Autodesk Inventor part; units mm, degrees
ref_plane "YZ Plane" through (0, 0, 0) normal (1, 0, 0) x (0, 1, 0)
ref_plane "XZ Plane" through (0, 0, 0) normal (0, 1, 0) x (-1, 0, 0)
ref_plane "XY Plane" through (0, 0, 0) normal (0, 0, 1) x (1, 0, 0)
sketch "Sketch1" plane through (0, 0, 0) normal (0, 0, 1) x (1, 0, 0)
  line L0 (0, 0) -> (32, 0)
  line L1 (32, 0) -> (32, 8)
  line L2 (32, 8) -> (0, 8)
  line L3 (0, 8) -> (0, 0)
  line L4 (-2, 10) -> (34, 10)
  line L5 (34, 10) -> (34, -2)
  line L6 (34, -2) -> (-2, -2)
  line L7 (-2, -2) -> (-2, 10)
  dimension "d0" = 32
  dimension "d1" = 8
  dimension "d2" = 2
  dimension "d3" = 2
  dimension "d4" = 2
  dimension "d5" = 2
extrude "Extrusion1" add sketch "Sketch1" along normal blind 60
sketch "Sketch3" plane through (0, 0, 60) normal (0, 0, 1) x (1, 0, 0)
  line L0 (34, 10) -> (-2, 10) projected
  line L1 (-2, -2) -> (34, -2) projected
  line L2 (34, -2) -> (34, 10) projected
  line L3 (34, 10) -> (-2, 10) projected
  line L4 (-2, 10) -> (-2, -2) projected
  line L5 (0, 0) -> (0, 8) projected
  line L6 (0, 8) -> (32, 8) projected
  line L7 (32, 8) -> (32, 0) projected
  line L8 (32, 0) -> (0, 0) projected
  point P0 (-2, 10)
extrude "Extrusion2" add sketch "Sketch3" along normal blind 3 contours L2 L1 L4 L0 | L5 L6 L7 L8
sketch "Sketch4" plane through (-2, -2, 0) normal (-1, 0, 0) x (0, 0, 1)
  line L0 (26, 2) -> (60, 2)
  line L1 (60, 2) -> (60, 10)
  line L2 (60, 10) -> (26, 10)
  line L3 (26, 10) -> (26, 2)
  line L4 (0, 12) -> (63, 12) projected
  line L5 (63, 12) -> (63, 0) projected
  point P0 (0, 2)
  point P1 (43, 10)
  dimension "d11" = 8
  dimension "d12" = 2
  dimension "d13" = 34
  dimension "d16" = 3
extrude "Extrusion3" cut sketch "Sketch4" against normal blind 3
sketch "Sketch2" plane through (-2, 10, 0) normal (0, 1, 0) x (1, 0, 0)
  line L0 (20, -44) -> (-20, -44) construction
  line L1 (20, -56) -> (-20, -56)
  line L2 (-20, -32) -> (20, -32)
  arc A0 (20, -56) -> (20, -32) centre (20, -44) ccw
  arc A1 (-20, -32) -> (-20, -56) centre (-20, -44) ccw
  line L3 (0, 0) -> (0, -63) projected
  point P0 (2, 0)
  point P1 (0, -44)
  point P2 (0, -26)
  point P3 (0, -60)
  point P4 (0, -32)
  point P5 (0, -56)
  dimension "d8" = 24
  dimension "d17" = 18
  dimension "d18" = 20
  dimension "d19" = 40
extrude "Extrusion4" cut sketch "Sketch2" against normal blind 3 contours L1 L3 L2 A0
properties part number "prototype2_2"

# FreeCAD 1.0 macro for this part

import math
import FreeCAD as App
import Part
import Sketcher
from FreeCAD import Vector

doc = App.newDocument("Part")
body = doc.addObject("PartDesign::Body", "Body")

sketch1 = body.newObject("Sketcher::SketchObject", "Sketch")
sketch1.AttachmentSupport = (doc.getObject("XY_Plane"), [""])
sketch1.MapMode = "FlatFace"
sketch1.addGeometry([
    Part.LineSegment(Vector(34, 10, 0), Vector(-2, 10, 0)),
    Part.LineSegment(Vector(-2, 10, 0), Vector(-2, -2, 0)),
    Part.LineSegment(Vector(-2, -2, 0), Vector(34, -2, 0)),
    Part.LineSegment(Vector(34, -2, 0), Vector(34, 10, 0)),
    Part.LineSegment(Vector(32, 0, 0), Vector(0, 0, 0)),
    Part.LineSegment(Vector(0, 0, 0), Vector(0, 8, 0)),
    Part.LineSegment(Vector(0, 8, 0), Vector(32, 8, 0)),
    Part.LineSegment(Vector(32, 8, 0), Vector(32, 0, 0)),
], False)
sketch1.addConstraint([
    Sketcher.Constraint("Coincident", 0, 2, 1, 1),
    Sketcher.Constraint("Coincident", 1, 2, 2, 1),
    Sketcher.Constraint("Coincident", 2, 2, 3, 1),
    Sketcher.Constraint("Coincident", 3, 2, 0, 1),
    Sketcher.Constraint("Coincident", 4, 2, 5, 1),
    Sketcher.Constraint("Coincident", 5, 2, 6, 1),
    Sketcher.Constraint("Coincident", 6, 2, 7, 1),
    Sketcher.Constraint("Coincident", 7, 2, 4, 1),
    Sketcher.Constraint("Horizontal", 0),
    Sketcher.Constraint("Vertical", 1),
    Sketcher.Constraint("Horizontal", 2),
    Sketcher.Constraint("Vertical", 3),
    Sketcher.Constraint("Horizontal", 4),
    Sketcher.Constraint("Vertical", 5),
    Sketcher.Constraint("Horizontal", 6),
    Sketcher.Constraint("Vertical", 7),
    Sketcher.Constraint("Coincident", 4, 2, -1, 1),
    Sketcher.Constraint("DistanceX", 4, 2, 4, 1, 32.0),
    Sketcher.Constraint("DistanceY", 5, 1, 5, 2, 8.0),
    Sketcher.Constraint("DistanceX", 0, 2, -1, 1, 2.0),
    Sketcher.Constraint("DistanceY", 1, 2, -1, 1, 2.0),
    Sketcher.Constraint("DistanceY", 5, 2, 0, 2, 2.0),
    Sketcher.Constraint("DistanceX", 6, 2, 3, 2, 2.0),
])
pad1 = body.newObject("PartDesign::Pad", "Pad")
pad1.Profile = sketch1
pad1.Length = 60

sketch2 = body.newObject("Sketcher::SketchObject", "Sketch001")
sketch2.AttachmentSupport = (doc.getObject("XY_Plane"), [""])
sketch2.MapMode = "FlatFace"
sketch2.AttachmentOffset = App.Placement(Vector(0, 0, 60), App.Rotation())
sketch2.addGeometry([
    Part.LineSegment(Vector(34, -2, 0), Vector(34, 10, 0)),
    Part.LineSegment(Vector(34, 10, 0), Vector(-2, 10, 0)),
    Part.LineSegment(Vector(-2, 10, 0), Vector(-2, -2, 0)),
    Part.LineSegment(Vector(-2, -2, 0), Vector(34, -2, 0)),
], False)
sketch2.addConstraint([
    Sketcher.Constraint("Coincident", 0, 2, 1, 1),
    Sketcher.Constraint("Coincident", 1, 2, 2, 1),
    Sketcher.Constraint("Coincident", 2, 2, 3, 1),
    Sketcher.Constraint("Coincident", 3, 2, 0, 1),
    Sketcher.Constraint("Vertical", 0),
    Sketcher.Constraint("Horizontal", 1),
    Sketcher.Constraint("Vertical", 2),
    Sketcher.Constraint("Horizontal", 3),
    Sketcher.Constraint("DistanceX", 1, 2, 1, 1, 36.0),
    Sketcher.Constraint("DistanceY", 0, 1, 0, 2, 12.0),
    Sketcher.Constraint("DistanceX", -1, 1, 0, 2, 34.0),
    Sketcher.Constraint("DistanceY", -1, 1, 0, 2, 10.0),
])
pad2 = body.newObject("PartDesign::Pad", "Pad001")
pad2.Profile = sketch2
pad2.Length = 3

sketch3 = body.newObject("Sketcher::SketchObject", "Sketch002")
sketch3.AttachmentSupport = (doc.getObject("YZ_Plane"), [""])
sketch3.MapMode = "FlatFace"
sketch3.AttachmentOffset = App.Placement(Vector(0, 0, -2), App.Rotation())
sketch3.addGeometry([
    Part.LineSegment(Vector(8, 26, 0), Vector(0, 26, 0)),
    Part.LineSegment(Vector(0, 26, 0), Vector(0, 60, 0)),
    Part.LineSegment(Vector(0, 60, 0), Vector(8, 60, 0)),
    Part.LineSegment(Vector(8, 60, 0), Vector(8, 26, 0)),
], False)
sketch3.addConstraint([
    Sketcher.Constraint("Coincident", 0, 2, 1, 1),
    Sketcher.Constraint("Coincident", 1, 2, 2, 1),
    Sketcher.Constraint("Coincident", 2, 2, 3, 1),
    Sketcher.Constraint("Coincident", 3, 2, 0, 1),
    Sketcher.Constraint("Horizontal", 0),
    Sketcher.Constraint("Vertical", 1),
    Sketcher.Constraint("Horizontal", 2),
    Sketcher.Constraint("Vertical", 3),
    Sketcher.Constraint("PointOnObject", 0, 2, -2),
    Sketcher.Constraint("DistanceX", 0, 2, 0, 1, 8.0),
    Sketcher.Constraint("DistanceY", 1, 1, 1, 2, 34.0),
    Sketcher.Constraint("DistanceY", -1, 1, 0, 2, 26.0),
])
pocket1 = body.newObject("PartDesign::Pocket", "Pocket")
pocket1.Profile = sketch3
pocket1.Length = 3
pocket1.Reversed = True

sketch4 = body.newObject("Sketcher::SketchObject", "Sketch003")
sketch4.AttachmentSupport = (doc.getObject("XZ_Plane"), [""])
sketch4.MapMode = "FlatFace"
sketch4.AttachmentOffset = App.Placement(Vector(0, 0, -10), App.Rotation())
sketch4.addGeometry([
    Part.LineSegment(Vector(-2, 56, 0), Vector(18, 56, 0)),
    Part.ArcOfCircle(Part.Circle(Vector(18, 44, 0), Vector(0, 0, 1), 12), math.radians(-90), math.radians(90)),
    Part.LineSegment(Vector(18, 32, 0), Vector(-2, 32, 0)),
    Part.LineSegment(Vector(-2, 32, 0), Vector(-2, 56, 0)),
], False)
sketch4.addConstraint([
    Sketcher.Constraint("Tangent", 0, 2, 1, 2),
    Sketcher.Constraint("Tangent", 1, 1, 2, 1),
    Sketcher.Constraint("Coincident", 2, 2, 3, 1),
    Sketcher.Constraint("Coincident", 3, 2, 0, 1),
    Sketcher.Constraint("Horizontal", 0),
    Sketcher.Constraint("Horizontal", 2),
    Sketcher.Constraint("Vertical", 3),
    Sketcher.Constraint("Radius", 1, 12.0),
    Sketcher.Constraint("DistanceX", 0, 1, 0, 2, 20.0),
    Sketcher.Constraint("DistanceX", -1, 1, 1, 3, 18.0),
    Sketcher.Constraint("DistanceY", -1, 1, 1, 3, 44.0),
])
pocket2 = body.newObject("PartDesign::Pocket", "Pocket001")
pocket2.Profile = sketch4
pocket2.Length = 3
pocket2.Reversed = True

doc.recompute()
